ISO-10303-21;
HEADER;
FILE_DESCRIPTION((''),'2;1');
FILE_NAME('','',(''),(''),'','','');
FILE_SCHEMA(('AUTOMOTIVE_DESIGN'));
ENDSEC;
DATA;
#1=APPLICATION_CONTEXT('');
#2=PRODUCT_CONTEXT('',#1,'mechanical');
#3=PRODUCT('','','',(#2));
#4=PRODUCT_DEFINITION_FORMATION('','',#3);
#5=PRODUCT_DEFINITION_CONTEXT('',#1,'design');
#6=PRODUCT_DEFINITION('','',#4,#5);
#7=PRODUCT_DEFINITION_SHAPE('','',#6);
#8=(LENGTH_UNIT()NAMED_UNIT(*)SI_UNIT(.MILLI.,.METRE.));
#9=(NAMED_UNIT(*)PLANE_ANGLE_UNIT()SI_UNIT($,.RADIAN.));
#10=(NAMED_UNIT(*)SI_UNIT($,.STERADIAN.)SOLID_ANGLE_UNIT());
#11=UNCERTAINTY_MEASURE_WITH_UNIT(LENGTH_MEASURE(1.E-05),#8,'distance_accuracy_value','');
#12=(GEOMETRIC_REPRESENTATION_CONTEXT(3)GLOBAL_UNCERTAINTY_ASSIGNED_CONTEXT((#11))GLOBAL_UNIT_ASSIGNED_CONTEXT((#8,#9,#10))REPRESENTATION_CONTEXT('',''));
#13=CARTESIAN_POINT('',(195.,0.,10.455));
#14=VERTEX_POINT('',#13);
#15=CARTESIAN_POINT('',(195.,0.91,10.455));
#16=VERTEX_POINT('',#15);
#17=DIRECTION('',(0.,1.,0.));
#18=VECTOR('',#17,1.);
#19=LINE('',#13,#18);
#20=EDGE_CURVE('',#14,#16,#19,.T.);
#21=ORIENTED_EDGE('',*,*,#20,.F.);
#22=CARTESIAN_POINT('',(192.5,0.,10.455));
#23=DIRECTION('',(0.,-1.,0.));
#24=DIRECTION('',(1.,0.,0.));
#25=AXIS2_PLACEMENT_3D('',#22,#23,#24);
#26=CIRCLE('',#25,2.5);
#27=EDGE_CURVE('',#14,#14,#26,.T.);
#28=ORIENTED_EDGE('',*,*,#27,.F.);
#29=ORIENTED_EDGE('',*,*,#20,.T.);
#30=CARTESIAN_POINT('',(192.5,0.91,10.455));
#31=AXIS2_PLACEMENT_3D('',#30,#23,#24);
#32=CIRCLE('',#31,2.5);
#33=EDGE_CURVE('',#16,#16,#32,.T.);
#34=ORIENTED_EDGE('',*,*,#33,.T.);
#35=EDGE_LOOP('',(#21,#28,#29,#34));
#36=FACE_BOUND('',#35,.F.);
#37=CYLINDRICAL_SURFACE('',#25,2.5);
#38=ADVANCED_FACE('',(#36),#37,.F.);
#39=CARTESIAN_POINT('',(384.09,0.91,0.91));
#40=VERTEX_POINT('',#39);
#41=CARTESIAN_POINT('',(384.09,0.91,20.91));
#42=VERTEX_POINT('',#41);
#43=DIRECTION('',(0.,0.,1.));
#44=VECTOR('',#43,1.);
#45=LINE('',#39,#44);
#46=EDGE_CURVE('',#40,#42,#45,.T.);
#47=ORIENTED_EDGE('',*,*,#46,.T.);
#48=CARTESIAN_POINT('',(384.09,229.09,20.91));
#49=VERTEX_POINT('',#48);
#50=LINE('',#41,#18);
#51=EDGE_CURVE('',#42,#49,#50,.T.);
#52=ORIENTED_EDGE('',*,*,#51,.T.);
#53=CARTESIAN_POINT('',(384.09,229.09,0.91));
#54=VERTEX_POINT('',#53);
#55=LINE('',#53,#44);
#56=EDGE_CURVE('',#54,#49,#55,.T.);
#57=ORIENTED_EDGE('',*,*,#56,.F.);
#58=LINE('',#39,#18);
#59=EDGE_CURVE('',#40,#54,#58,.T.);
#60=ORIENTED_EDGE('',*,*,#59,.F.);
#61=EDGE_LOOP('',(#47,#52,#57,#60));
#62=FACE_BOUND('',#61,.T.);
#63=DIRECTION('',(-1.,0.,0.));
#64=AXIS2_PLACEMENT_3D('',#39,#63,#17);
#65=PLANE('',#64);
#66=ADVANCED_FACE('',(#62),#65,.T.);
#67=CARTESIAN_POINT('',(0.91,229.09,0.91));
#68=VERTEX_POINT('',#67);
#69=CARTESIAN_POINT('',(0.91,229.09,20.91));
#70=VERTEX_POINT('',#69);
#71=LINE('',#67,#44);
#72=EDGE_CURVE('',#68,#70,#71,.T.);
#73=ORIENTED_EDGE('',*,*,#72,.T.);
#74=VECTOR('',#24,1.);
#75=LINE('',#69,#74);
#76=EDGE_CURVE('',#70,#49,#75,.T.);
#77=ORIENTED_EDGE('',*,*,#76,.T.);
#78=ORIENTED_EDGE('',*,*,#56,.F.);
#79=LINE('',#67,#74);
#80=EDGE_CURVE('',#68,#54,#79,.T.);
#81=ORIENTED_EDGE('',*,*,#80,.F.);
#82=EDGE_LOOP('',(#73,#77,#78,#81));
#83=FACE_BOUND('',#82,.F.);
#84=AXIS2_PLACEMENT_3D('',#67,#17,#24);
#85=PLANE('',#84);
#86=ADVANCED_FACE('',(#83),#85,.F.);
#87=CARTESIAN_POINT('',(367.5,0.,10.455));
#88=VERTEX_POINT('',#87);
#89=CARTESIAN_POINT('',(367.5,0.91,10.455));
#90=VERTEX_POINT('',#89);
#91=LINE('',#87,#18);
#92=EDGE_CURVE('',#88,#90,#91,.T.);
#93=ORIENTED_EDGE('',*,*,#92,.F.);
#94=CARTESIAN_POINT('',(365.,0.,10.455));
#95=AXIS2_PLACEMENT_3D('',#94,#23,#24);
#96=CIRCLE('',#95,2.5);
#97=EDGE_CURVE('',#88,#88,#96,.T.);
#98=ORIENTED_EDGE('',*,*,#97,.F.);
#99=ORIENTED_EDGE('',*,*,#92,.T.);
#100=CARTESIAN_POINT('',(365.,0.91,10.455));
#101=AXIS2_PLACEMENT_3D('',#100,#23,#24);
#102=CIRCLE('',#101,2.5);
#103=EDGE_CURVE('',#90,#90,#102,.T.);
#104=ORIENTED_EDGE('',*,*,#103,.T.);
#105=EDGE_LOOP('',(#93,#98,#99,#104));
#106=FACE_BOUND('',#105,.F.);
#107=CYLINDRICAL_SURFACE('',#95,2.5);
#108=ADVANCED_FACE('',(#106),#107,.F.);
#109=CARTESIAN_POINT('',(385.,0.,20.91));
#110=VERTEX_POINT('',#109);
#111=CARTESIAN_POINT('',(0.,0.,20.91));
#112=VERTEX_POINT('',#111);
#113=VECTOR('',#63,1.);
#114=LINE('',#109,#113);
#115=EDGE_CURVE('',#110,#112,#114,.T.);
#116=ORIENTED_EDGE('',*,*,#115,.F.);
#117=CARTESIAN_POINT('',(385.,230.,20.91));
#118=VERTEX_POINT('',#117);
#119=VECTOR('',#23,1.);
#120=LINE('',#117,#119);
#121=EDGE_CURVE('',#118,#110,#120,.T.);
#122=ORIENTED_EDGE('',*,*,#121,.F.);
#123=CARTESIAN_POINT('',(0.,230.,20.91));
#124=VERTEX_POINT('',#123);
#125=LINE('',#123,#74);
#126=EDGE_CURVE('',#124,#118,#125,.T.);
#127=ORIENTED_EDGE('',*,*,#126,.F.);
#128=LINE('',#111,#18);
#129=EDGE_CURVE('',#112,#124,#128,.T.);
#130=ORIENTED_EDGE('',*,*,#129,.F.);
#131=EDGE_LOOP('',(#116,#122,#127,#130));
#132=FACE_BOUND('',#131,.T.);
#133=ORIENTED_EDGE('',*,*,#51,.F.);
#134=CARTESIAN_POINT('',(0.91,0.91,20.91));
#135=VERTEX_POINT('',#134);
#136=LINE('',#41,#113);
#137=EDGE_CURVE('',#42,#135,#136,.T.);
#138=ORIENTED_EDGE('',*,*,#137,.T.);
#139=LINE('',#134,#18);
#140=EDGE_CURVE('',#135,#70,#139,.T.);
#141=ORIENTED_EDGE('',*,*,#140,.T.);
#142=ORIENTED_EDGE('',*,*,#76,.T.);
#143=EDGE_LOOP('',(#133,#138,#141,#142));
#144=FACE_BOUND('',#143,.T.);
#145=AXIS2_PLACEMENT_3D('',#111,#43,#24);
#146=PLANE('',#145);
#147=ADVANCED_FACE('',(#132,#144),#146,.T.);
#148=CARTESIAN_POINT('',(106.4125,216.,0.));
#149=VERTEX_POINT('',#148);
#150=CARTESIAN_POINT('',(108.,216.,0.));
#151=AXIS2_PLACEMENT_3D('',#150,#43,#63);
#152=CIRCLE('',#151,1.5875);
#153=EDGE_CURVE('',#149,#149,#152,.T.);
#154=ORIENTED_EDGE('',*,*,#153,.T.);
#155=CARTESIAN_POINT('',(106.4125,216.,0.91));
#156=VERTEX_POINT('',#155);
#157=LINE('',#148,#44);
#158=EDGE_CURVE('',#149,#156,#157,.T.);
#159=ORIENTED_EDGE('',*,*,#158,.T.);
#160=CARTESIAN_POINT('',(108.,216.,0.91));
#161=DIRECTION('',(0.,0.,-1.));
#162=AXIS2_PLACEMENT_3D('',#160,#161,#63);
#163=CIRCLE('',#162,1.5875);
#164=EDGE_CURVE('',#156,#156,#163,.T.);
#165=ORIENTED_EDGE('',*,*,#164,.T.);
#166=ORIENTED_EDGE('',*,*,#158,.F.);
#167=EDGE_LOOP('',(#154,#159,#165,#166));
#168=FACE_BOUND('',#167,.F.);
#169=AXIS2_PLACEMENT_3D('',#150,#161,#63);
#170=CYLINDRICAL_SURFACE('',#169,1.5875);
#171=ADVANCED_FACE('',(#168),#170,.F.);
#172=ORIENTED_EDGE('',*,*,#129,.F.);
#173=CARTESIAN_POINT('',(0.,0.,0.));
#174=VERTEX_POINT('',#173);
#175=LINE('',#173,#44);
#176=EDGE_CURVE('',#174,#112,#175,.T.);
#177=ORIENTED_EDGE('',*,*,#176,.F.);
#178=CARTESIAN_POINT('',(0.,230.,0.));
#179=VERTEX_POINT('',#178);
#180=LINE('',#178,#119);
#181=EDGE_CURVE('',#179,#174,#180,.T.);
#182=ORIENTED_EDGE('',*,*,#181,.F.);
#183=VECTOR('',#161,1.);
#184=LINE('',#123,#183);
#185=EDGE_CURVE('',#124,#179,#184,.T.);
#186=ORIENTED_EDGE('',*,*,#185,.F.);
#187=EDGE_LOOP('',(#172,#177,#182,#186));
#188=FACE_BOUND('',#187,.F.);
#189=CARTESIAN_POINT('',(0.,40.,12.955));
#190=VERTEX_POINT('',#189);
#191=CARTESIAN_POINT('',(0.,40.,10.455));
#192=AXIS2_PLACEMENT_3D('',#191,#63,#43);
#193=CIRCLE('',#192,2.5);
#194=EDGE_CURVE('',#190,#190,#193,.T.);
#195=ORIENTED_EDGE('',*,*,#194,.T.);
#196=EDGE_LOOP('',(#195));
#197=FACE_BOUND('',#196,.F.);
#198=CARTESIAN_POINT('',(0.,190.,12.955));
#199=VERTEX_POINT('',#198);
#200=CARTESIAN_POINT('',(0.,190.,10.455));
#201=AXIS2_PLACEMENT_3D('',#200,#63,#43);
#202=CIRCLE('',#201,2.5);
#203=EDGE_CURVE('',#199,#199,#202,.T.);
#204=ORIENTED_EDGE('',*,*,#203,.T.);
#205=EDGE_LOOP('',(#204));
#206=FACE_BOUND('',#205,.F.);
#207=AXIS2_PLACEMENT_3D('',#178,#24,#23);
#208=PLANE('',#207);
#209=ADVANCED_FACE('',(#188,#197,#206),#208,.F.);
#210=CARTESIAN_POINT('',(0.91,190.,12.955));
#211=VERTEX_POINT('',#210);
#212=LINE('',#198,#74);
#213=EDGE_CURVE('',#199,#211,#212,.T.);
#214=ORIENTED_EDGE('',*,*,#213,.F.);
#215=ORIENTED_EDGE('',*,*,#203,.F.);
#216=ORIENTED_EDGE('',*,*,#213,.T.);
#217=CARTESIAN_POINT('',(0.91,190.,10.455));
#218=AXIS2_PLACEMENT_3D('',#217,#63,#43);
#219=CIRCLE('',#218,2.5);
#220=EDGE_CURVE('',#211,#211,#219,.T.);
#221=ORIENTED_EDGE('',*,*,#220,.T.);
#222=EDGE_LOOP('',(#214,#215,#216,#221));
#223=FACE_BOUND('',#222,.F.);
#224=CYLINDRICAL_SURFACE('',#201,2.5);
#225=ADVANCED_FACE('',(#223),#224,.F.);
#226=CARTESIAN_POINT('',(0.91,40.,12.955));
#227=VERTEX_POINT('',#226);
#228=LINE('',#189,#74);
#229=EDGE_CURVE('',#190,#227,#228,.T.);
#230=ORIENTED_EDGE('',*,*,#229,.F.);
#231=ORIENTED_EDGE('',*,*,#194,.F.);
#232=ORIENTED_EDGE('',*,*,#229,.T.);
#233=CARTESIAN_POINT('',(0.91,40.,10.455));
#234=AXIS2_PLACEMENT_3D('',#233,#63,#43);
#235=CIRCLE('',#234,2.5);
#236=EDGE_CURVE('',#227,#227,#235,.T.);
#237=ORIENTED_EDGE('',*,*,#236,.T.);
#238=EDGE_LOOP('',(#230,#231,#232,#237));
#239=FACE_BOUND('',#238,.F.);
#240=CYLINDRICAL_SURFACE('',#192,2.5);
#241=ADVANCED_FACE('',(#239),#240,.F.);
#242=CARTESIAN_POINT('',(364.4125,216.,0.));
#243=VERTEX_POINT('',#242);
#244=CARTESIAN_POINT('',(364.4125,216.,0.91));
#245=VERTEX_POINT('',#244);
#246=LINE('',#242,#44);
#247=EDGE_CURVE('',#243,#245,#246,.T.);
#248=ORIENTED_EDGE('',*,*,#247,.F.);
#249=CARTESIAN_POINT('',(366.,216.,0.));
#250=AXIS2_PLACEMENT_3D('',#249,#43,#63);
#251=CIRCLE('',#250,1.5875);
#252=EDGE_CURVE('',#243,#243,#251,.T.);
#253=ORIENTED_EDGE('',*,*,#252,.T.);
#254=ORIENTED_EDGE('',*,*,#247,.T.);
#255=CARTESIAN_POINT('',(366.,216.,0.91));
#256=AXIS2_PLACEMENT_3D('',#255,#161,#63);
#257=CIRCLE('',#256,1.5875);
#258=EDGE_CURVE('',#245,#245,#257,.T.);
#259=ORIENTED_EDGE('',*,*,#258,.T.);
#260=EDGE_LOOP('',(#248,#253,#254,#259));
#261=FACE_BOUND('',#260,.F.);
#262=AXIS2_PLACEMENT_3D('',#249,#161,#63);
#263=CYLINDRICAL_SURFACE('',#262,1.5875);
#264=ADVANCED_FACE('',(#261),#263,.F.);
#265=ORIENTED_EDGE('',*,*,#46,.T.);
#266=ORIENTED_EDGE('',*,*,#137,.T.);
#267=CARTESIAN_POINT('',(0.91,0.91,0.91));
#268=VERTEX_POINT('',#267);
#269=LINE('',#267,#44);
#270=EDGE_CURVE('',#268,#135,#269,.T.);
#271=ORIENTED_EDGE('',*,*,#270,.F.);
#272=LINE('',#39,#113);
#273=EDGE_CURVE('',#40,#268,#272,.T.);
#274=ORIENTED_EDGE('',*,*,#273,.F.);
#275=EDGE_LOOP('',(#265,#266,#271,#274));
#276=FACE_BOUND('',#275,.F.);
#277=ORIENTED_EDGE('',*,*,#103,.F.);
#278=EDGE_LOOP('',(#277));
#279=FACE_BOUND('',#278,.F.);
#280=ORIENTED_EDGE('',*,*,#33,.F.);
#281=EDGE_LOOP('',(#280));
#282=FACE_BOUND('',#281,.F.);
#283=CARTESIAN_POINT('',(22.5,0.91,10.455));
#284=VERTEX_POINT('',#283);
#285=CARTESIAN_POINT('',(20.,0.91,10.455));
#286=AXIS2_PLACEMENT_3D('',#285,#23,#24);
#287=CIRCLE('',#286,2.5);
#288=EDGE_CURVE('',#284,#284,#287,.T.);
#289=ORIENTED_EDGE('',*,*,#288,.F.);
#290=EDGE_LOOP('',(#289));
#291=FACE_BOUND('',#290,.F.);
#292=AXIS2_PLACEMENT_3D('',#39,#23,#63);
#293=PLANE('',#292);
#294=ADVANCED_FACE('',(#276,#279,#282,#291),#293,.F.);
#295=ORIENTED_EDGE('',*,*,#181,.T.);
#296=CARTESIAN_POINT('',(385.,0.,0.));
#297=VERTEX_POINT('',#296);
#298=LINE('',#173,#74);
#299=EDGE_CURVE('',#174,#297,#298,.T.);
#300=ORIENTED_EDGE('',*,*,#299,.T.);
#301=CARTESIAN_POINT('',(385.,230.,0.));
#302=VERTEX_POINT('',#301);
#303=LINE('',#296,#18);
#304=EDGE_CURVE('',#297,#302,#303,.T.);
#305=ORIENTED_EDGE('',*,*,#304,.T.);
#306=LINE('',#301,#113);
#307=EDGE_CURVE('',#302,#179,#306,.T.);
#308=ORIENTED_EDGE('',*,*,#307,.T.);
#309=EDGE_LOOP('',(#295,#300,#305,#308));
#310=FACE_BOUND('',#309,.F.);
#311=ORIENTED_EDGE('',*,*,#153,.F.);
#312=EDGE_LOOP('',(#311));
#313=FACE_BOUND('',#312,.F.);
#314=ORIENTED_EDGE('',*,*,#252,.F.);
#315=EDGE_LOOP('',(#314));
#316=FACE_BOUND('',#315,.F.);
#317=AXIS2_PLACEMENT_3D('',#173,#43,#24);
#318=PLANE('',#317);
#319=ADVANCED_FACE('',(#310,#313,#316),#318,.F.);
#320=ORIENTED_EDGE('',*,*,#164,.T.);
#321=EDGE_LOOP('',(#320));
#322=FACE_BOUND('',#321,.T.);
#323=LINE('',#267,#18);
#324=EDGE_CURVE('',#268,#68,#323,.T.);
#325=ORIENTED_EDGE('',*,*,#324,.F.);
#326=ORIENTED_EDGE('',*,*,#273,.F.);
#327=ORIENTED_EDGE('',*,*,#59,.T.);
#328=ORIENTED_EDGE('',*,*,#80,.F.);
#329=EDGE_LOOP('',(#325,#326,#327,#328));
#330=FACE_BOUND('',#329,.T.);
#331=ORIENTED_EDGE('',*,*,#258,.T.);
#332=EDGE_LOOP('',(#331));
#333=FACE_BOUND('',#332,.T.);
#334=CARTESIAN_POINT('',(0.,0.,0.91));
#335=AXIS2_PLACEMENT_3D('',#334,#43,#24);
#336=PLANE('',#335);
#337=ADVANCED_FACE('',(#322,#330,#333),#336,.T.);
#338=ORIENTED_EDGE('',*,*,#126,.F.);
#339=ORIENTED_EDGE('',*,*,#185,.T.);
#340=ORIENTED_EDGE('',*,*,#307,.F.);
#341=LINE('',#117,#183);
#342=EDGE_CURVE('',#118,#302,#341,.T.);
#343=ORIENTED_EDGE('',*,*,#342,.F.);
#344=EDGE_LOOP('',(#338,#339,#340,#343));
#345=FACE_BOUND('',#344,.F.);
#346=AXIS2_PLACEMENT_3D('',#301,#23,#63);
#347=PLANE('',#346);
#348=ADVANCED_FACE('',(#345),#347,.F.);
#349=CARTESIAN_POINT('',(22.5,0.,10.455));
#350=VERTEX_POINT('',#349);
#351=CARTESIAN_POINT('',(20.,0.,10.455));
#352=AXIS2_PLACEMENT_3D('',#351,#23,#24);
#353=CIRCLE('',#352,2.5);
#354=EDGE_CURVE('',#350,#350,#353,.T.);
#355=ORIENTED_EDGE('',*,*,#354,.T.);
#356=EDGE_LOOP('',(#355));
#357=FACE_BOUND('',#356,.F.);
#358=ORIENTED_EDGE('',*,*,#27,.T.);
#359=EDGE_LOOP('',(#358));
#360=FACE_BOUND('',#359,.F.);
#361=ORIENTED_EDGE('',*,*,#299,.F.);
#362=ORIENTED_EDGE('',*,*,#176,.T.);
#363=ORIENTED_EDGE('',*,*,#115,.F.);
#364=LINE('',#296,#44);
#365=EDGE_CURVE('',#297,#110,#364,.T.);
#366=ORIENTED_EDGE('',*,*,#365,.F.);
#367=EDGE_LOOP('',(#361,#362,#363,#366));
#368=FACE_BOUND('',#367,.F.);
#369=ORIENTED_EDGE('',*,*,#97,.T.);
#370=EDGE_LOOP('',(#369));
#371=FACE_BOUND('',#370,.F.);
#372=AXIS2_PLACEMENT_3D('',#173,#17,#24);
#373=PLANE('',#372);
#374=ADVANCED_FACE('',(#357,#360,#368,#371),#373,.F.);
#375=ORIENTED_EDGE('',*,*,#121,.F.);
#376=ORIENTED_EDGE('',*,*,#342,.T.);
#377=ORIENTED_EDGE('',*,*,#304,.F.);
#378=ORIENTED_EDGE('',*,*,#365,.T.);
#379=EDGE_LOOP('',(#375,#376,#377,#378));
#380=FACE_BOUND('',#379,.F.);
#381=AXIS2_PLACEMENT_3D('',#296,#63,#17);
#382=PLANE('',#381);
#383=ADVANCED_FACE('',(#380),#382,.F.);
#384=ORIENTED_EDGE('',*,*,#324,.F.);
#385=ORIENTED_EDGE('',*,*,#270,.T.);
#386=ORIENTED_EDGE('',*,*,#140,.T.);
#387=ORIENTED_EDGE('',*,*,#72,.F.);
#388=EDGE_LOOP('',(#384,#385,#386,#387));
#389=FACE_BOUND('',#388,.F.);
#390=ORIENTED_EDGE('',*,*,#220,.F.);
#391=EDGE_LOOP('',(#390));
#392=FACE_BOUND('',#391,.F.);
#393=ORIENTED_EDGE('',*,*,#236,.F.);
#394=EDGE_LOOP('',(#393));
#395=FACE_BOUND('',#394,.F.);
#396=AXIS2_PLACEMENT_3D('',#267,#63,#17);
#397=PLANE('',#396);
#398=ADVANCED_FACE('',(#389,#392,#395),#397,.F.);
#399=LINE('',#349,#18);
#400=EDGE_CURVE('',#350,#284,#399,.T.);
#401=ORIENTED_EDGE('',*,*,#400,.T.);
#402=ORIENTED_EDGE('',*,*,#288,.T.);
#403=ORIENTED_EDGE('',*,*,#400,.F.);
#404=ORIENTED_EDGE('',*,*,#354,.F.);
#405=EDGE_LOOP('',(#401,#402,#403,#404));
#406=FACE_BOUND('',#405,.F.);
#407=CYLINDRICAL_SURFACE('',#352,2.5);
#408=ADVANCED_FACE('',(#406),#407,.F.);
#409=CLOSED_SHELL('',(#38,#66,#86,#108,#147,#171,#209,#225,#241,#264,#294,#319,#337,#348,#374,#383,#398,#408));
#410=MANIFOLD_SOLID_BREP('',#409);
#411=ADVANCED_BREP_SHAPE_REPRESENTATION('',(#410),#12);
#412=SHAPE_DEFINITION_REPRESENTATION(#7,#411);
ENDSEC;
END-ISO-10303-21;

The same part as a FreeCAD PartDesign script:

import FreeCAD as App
import Part
import Sketcher
from FreeCAD import Vector

doc = App.newDocument("Part")
body = doc.addObject("PartDesign::Body", "Body")

# Sketch on XY plane
sketch1 = body.newObject("Sketcher::SketchObject", "Sketch")
sketch1.AttachmentSupport = (doc.getObject("XY_Plane"), [""])
sketch1.MapMode = "FlatFace"
sketch1.addGeometry([
    Part.LineSegment(Vector(0, 230, 0), Vector(0, 0, 0)),
    Part.LineSegment(Vector(0, 0, 0), Vector(385, 0, 0)),
    Part.LineSegment(Vector(385, 0, 0), Vector(385, 230, 0)),
    Part.LineSegment(Vector(385, 230, 0), Vector(0, 230, 0)),
], False)
sketch1.addConstraint([
    Sketcher.Constraint("Coincident", 0, 2, 1, 1),
    Sketcher.Constraint("Coincident", 1, 2, 2, 1),
    Sketcher.Constraint("Coincident", 2, 2, 3, 1),
    Sketcher.Constraint("Coincident", 3, 2, 0, 1),
    Sketcher.Constraint("Vertical", 0),
    Sketcher.Constraint("Horizontal", 1),
    Sketcher.Constraint("Vertical", 2),
    Sketcher.Constraint("Horizontal", 3),
    Sketcher.Constraint("Coincident", 0, 2, -1, 1),
    Sketcher.Constraint("DistanceX", 1, 1, 1, 2, 385.0),
    Sketcher.Constraint("DistanceY", 0, 2, 0, 1, 230.0),
])
pad1 = body.newObject("PartDesign::Pad", "Pad")
pad1.Profile = sketch1
pad1.Length = 0.91

# Sketch on XY plane
sketch2 = body.newObject("Sketcher::SketchObject", "Sketch001")
sketch2.AttachmentSupport = (doc.getObject("XY_Plane"), [""])
sketch2.MapMode = "FlatFace"
sketch2.AttachmentOffset = App.Placement(Vector(0, 0, 0.91), App.Rotation())
sketch2.addGeometry([
    Part.LineSegment(Vector(385, 0, 0), Vector(385, 230, 0)),  # 0
    Part.LineSegment(Vector(385, 230, 0), Vector(0, 230, 0)),  # 1
    Part.LineSegment(Vector(0, 230, 0), Vector(0, 0, 0)),  # 2
    Part.LineSegment(Vector(0, 0, 0), Vector(385, 0, 0)),  # 3
    Part.LineSegment(Vector(384, 1, 0), Vector(1, 1, 0)),  # 4
    Part.LineSegment(Vector(1, 1, 0), Vector(1, 229, 0)),  # 5
    Part.LineSegment(Vector(1, 229, 0), Vector(384, 229, 0)),  # 6
    Part.LineSegment(Vector(384, 229, 0), Vector(384, 1, 0)),  # 7
], False)
sketch2.addConstraint([
    Sketcher.Constraint("Coincident", 0, 2, 1, 1),
    Sketcher.Constraint("Coincident", 1, 2, 2, 1),
    Sketcher.Constraint("Coincident", 2, 2, 3, 1),
    Sketcher.Constraint("Coincident", 3, 2, 0, 1),
    Sketcher.Constraint("Coincident", 4, 2, 5, 1),
    Sketcher.Constraint("Coincident", 5, 2, 6, 1),
    Sketcher.Constraint("Coincident", 6, 2, 7, 1),
    Sketcher.Constraint("Coincident", 7, 2, 4, 1),
    Sketcher.Constraint("Vertical", 0),
    Sketcher.Constraint("Horizontal", 1),
    Sketcher.Constraint("Vertical", 2),
    Sketcher.Constraint("Horizontal", 3),
    Sketcher.Constraint("Horizontal", 4),
    Sketcher.Constraint("Vertical", 5),
    Sketcher.Constraint("Horizontal", 6),
    Sketcher.Constraint("Vertical", 7),
    Sketcher.Constraint("Coincident", 2, 2, -1, 1),
    Sketcher.Constraint("DistanceX", 1, 2, 1, 1, 385.0),
    Sketcher.Constraint("DistanceY", 0, 1, 0, 2, 230.0),
    Sketcher.Constraint("DistanceX", -1, 1, 4, 2, 0.91),
    Sketcher.Constraint("DistanceY", -1, 1, 4, 2, 0.91),
    Sketcher.Constraint("DistanceY", 5, 2, 1, 2, 0.91),
    Sketcher.Constraint("DistanceX", 6, 2, 0, 2, 0.91),
])
pad2 = body.newObject("PartDesign::Pad", "Pad001")
pad2.Profile = sketch2
pad2.Length = 20

# Sketch on XY plane
sketch3 = body.newObject("Sketcher::SketchObject", "Sketch002")
sketch3.AttachmentSupport = (doc.getObject("XY_Plane"), [""])
sketch3.MapMode = "FlatFace"
sketch3.addGeometry([
    Part.Circle(Vector(366, 216, 0), Vector(0, 0, 1), 1.6),
    Part.Circle(Vector(108, 216, 0), Vector(0, 0, 1), 1.6),
], False)
sketch3.addConstraint([
    Sketcher.Constraint("Equal", 0, 1),
    Sketcher.Constraint("Horizontal", 0, 3, 1, 3),
    Sketcher.Constraint("Diameter", 0, 3.175),
    Sketcher.Constraint("DistanceX", 1, 3, 0, 3, 258.0),
    Sketcher.Constraint("DistanceX", -1, 1, 0, 3, 366.0),
    Sketcher.Constraint("DistanceY", -1, 1, 0, 3, 216.0),
])
pocket1 = body.newObject("PartDesign::Pocket", "Pocket")
pocket1.Profile = sketch3
pocket1.Type = "ThroughAll"
pocket1.Reversed = True

# Sketch on XZ plane
sketch4 = body.newObject("Sketcher::SketchObject", "Sketch003")
sketch4.AttachmentSupport = (doc.getObject("XZ_Plane"), [""])
sketch4.MapMode = "FlatFace"
sketch4.addGeometry([
    Part.Circle(Vector(20, 10.5, 0), Vector(0, 0, 1), 2.5),
    Part.Circle(Vector(192.5, 10.5, 0), Vector(0, 0, 1), 2.5),
    Part.Circle(Vector(365, 10.5, 0), Vector(0, 0, 1), 2.5),
], False)
sketch4.addConstraint([
    Sketcher.Constraint("Equal", 0, 1),
    Sketcher.Constraint("Equal", 1, 2),
    Sketcher.Constraint("Horizontal", 0, 3, 1, 3),
    Sketcher.Constraint("Horizontal", 1, 3, 2, 3),
    Sketcher.Constraint("Diameter", 0, 5.0),
    Sketcher.Constraint("DistanceX", -1, 1, 0, 3, 20.0),
    Sketcher.Constraint("DistanceX", -1, 1, 2, 3, 365.0),
    Sketcher.Constraint("DistanceX", -1, 1, 1, 3, 192.5),
    Sketcher.Constraint("DistanceY", -1, 1, 0, 3, 10.455),
])
pocket2 = body.newObject("PartDesign::Pocket", "Pocket001")
pocket2.Profile = sketch4
pocket2.Length = 1.52

# Sketch on YZ plane
sketch5 = body.newObject("Sketcher::SketchObject", "Sketch004")
sketch5.AttachmentSupport = (doc.getObject("YZ_Plane"), [""])
sketch5.MapMode = "FlatFace"
sketch5.addGeometry([
    Part.Circle(Vector(40, 10.5, 0), Vector(0, 0, 1), 2.5),
    Part.Circle(Vector(190, 10.5, 0), Vector(0, 0, 1), 2.5),
], False)
sketch5.addConstraint([
    Sketcher.Constraint("Equal", 0, 1),
    Sketcher.Constraint("Horizontal", 0, 3, 1, 3),
    Sketcher.Constraint("Diameter", 0, 5.0),
    Sketcher.Constraint("DistanceX", -1, 1, 0, 3, 40.0),
    Sketcher.Constraint("DistanceX", -1, 1, 1, 3, 190.0),
    Sketcher.Constraint("DistanceY", -1, 1, 0, 3, 10.455),
])
pocket3 = body.newObject("PartDesign::Pocket", "Pocket002")
pocket3.Profile = sketch5
pocket3.Length = 1.52
pocket3.Reversed = True

doc.recompute()
